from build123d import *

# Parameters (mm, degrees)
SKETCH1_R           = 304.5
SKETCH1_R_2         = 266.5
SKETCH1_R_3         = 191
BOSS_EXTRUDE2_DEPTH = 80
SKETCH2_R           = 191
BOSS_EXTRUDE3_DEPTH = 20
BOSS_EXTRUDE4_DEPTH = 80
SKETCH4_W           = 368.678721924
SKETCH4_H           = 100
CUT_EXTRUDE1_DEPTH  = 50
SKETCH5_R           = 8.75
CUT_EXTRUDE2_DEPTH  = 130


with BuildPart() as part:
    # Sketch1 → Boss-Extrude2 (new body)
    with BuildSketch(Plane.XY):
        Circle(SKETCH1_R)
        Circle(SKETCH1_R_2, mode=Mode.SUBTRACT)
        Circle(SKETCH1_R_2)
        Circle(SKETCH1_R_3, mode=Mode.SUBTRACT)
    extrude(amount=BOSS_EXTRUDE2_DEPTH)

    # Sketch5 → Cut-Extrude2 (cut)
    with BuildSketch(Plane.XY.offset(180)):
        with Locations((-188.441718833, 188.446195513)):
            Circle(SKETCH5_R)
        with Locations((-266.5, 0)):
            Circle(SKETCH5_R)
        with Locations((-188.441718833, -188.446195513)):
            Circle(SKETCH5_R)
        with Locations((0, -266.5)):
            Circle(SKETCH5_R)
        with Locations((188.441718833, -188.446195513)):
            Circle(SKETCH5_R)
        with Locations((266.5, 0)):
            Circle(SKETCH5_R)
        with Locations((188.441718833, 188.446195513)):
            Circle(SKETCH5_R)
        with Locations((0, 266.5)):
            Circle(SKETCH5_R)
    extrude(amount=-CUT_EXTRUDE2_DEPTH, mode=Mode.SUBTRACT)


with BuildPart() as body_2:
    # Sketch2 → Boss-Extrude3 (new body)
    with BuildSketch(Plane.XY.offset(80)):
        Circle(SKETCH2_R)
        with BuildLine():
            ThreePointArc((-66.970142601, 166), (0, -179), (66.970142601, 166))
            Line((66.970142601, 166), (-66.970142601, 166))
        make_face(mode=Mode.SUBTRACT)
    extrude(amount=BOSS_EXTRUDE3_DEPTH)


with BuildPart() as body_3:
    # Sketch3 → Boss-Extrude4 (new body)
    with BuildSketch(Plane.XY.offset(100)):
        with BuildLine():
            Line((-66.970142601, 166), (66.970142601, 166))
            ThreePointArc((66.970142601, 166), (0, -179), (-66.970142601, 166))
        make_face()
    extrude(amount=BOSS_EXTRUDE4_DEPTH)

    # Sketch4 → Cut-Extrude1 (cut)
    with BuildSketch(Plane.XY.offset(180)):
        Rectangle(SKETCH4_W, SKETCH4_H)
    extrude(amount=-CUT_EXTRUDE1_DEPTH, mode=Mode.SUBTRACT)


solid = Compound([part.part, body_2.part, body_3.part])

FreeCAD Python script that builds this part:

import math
import FreeCAD as App
import Part
import Sketcher

V = App.Vector


def add_polygon(sketch, points):
    """Adds a closed chain of lines whose ends are joined by coincident constraints."""
    first, n = sketch.GeometryCount, len(points)
    for a, b in zip(points, points[1:] + points[:1]):
        sketch.addGeometry(Part.LineSegment(App.Vector(*a, 0), App.Vector(*b, 0)), False)
    for i in range(n):
        sketch.addConstraint(Sketcher.Constraint("Coincident", first + i, 2, first + (i + 1) % n, 1))

doc = App.newDocument("Part")
params = doc.addObject("Spreadsheet::Sheet", "Params")
for row, (alias, value) in enumerate([
    ("sketch1_diameter", "609 mm"),
    ("sketch1_diameter2", "382 mm"),
    ("pad1_length", "80 mm"),
    ("sketch2_diameter", "17.5 mm"),
    ("pocket1_length", "130 mm"),
    ("sketch3_diameter", "382 mm"),
    ("sketch3_radius", "179 mm"),
    ("pad2_length", "20 mm"),
    ("sketch4_radius", "179 mm"),
    ("pad3_length", "80 mm"),
    ("sketch5_height", "100 mm"),
    ("pocket2_length", "50 mm"),
], start=1):
    params.set(f"A{row}", alias)
    params.set(f"B{row}", "=" + value)
    params.setAlias(f"B{row}", alias)

body = doc.addObject("PartDesign::Body", "Body")

# Sketch on XY plane
sketch1 = body.newObject("Sketcher::SketchObject", "Sketch")
sketch1.AttachmentSupport = (doc.getObject("XY_Plane"), [""])
sketch1.MapMode = "FlatFace"
sketch1.addGeometry([
    Part.Circle(V(0, 0, 0), V(0, 0, 1), 304.5),
    Part.Circle(V(0, 0, 0), V(0, 0, 1), 191),
], False)
sketch1.addConstraint([
    Sketcher.Constraint("Coincident", 0, 3, -1, 1),
    Sketcher.Constraint("Coincident", 1, 3, -1, 1),
    Sketcher.Constraint("Diameter", 0, 609.0),
    Sketcher.Constraint("Diameter", 1, 382.0),
])
sketch1.setExpression("Constraints[2]", "Params.sketch1_diameter")
sketch1.setExpression("Constraints[3]", "Params.sketch1_diameter2")
pad1 = body.newObject("PartDesign::Pad", "Pad")
pad1.Profile = sketch1
pad1.setExpression("Length", "Params.pad1_length")

# Sketch on XY plane
sketch2 = body.newObject("Sketcher::SketchObject", "Sketch001")
sketch2.AttachmentSupport = (doc.getObject("XY_Plane"), [""])
sketch2.MapMode = "FlatFace"
sketch2.AttachmentOffset = App.Placement(V(0, 0, 180), App.Rotation())
sketch2.addGeometry([
    Part.Circle(V(-188.441719, 188.446196, 0), V(0, 0, 1), 8.75),  # 0
    Part.Circle(V(-266.5, 0, 0), V(0, 0, 1), 8.75),  # 1
    Part.Circle(V(-188.441719, -188.446196, 0), V(0, 0, 1), 8.75),  # 2
    Part.Circle(V(0, -266.5, 0), V(0, 0, 1), 8.75),  # 3
    Part.Circle(V(188.441719, -188.446196, 0), V(0, 0, 1), 8.75),  # 4
    Part.Circle(V(266.5, 0, 0), V(0, 0, 1), 8.75),  # 5
    Part.Circle(V(188.441719, 188.446196, 0), V(0, 0, 1), 8.75),  # 6
    Part.Circle(V(0, 266.5, 0), V(0, 0, 1), 8.75),  # 7
], False)
sketch2.addConstraint([
    Sketcher.Constraint("Equal", 0, 1),
    Sketcher.Constraint("Equal", 1, 2),
    Sketcher.Constraint("Equal", 2, 3),
    Sketcher.Constraint("Equal", 3, 4),
    Sketcher.Constraint("Equal", 4, 5),
    Sketcher.Constraint("Equal", 5, 6),
    Sketcher.Constraint("Equal", 6, 7),
    Sketcher.Constraint("Symmetric", 0, 3, 4, 3, -1, 1),
    Sketcher.Constraint("Symmetric", 1, 3, 5, 3, -1, 1),
    Sketcher.Constraint("Symmetric", 2, 3, 6, 3, -1, 1),
    Sketcher.Constraint("Symmetric", 3, 3, 7, 3, -1, 1),
    Sketcher.Constraint("Symmetric", 2, 3, 4, 3, -2),
    Sketcher.Constraint("PointOnObject", 1, 3, -1),
    Sketcher.Constraint("PointOnObject", 3, 3, -2),
    Sketcher.Constraint("Diameter", 0, 17.5),
    Sketcher.Constraint("DistanceX", 1, 3, 5, 3, 533.0),
    Sketcher.Constraint("DistanceY", 3, 3, -1, 1, 266.5),
    Sketcher.Constraint("DistanceX", 0, 3, -1, 1, 188.441719),
    Sketcher.Constraint("DistanceY", 2, 3, 0, 3, 376.892391),
])
sketch2.setExpression("Constraints[14]", "Params.sketch2_diameter")
pocket1 = body.newObject("PartDesign::Pocket", "Pocket")
pocket1.Profile = sketch2
pocket1.setExpression("Length", "Params.pocket1_length")
body2 = doc.addObject("PartDesign::Body", "Body001")

# Sketch on XY plane
sketch3 = body2.newObject("Sketcher::SketchObject", "Sketch002")
sketch3.AttachmentSupport = (doc.getObject("XY_Plane001"), [""])
sketch3.MapMode = "FlatFace"
sketch3.AttachmentOffset = App.Placement(V(0, 0, 80), App.Rotation())
sketch3.addGeometry([
    Part.Circle(V(0, 0, 0), V(0, 0, 1), 191),
    Part.ArcOfCircle(Part.Circle(V(0, 0, 0), V(0, 0, 1), 179), math.radians(111.970853), math.radians(428.029147)),
    Part.LineSegment(V(-66.970143, 166, 0), V(66.970143, 166, 0)),
], False)
sketch3.addConstraint([
    Sketcher.Constraint("Coincident", 1, 1, 2, 1),
    Sketcher.Constraint("Coincident", 2, 2, 1, 2),
    Sketcher.Constraint("Horizontal", 2),
    Sketcher.Constraint("Coincident", 0, 3, -1, 1),
    Sketcher.Constraint("Coincident", 1, 3, -1, 1),
    Sketcher.Constraint("Diameter", 0, 382.0),
    Sketcher.Constraint("Radius", 1, 179.0),
    Sketcher.Constraint("DistanceY", -1, 1, 1, 1, 166.0),
])
sketch3.setExpression("Constraints[5]", "Params.sketch3_diameter")
sketch3.setExpression("Constraints[6]", "Params.sketch3_radius")
pad2 = body2.newObject("PartDesign::Pad", "Pad001")
pad2.Profile = sketch3
pad2.setExpression("Length", "Params.pad2_length")
body3 = doc.addObject("PartDesign::Body", "Body002")

# Sketch on XY plane
sketch4 = body3.newObject("Sketcher::SketchObject", "Sketch003")
sketch4.AttachmentSupport = (doc.getObject("XY_Plane002"), [""])
sketch4.MapMode = "FlatFace"
sketch4.AttachmentOffset = App.Placement(V(0, 0, 100), App.Rotation())
sketch4.addGeometry([
    Part.LineSegment(V(66.970143, 166, 0), V(-66.970143, 166, 0)),
    Part.ArcOfCircle(Part.Circle(V(0, 0, 0), V(0, 0, 1), 179), math.radians(111.970853), math.radians(428.029147)),
], False)
sketch4.addConstraint([
    Sketcher.Constraint("Coincident", 0, 1, 1, 2),
    Sketcher.Constraint("Coincident", 1, 1, 0, 2),
    Sketcher.Constraint("Horizontal", 0),
    Sketcher.Constraint("Coincident", 1, 3, -1, 1),
    Sketcher.Constraint("Radius", 1, 179.0),
    Sketcher.Constraint("DistanceY", -1, 1, 0, 1, 166.0),
])
sketch4.setExpression("Constraints[4]", "Params.sketch4_radius")
pad3 = body3.newObject("PartDesign::Pad", "Pad002")
pad3.Profile = sketch4
pad3.setExpression("Length", "Params.pad3_length")

# Sketch on XY plane
sketch5 = body3.newObject("Sketcher::SketchObject", "Sketch004")
sketch5.AttachmentSupport = (doc.getObject("XY_Plane002"), [""])
sketch5.MapMode = "FlatFace"
sketch5.AttachmentOffset = App.Placement(V(0, 0, 180), App.Rotation())
add_polygon(sketch5, [(-184.339361, 50), (-184.339361, -50), (184.339361, -50), (184.339361, 50)])  # lines 0-3
sketch5.addConstraint([
    Sketcher.Constraint("Vertical", 0),
    Sketcher.Constraint("Horizontal", 1),
    Sketcher.Constraint("Vertical", 2),
    Sketcher.Constraint("Horizontal", 3),
    Sketcher.Constraint("Symmetric", 0, 2, 2, 2, -1, 1),
    Sketcher.Constraint("DistanceY", 0, 2, 0, 1, 100.0),
    Sketcher.Constraint("DistanceX", 1, 1, 1, 2, 368.678722),
])
sketch5.setExpression("Constraints[9]", "Params.sketch5_height")
pocket2 = body3.newObject("PartDesign::Pocket", "Pocket001")
pocket2.Profile = sketch5
pocket2.setExpression("Length", "Params.pocket2_length")

doc.recompute()
